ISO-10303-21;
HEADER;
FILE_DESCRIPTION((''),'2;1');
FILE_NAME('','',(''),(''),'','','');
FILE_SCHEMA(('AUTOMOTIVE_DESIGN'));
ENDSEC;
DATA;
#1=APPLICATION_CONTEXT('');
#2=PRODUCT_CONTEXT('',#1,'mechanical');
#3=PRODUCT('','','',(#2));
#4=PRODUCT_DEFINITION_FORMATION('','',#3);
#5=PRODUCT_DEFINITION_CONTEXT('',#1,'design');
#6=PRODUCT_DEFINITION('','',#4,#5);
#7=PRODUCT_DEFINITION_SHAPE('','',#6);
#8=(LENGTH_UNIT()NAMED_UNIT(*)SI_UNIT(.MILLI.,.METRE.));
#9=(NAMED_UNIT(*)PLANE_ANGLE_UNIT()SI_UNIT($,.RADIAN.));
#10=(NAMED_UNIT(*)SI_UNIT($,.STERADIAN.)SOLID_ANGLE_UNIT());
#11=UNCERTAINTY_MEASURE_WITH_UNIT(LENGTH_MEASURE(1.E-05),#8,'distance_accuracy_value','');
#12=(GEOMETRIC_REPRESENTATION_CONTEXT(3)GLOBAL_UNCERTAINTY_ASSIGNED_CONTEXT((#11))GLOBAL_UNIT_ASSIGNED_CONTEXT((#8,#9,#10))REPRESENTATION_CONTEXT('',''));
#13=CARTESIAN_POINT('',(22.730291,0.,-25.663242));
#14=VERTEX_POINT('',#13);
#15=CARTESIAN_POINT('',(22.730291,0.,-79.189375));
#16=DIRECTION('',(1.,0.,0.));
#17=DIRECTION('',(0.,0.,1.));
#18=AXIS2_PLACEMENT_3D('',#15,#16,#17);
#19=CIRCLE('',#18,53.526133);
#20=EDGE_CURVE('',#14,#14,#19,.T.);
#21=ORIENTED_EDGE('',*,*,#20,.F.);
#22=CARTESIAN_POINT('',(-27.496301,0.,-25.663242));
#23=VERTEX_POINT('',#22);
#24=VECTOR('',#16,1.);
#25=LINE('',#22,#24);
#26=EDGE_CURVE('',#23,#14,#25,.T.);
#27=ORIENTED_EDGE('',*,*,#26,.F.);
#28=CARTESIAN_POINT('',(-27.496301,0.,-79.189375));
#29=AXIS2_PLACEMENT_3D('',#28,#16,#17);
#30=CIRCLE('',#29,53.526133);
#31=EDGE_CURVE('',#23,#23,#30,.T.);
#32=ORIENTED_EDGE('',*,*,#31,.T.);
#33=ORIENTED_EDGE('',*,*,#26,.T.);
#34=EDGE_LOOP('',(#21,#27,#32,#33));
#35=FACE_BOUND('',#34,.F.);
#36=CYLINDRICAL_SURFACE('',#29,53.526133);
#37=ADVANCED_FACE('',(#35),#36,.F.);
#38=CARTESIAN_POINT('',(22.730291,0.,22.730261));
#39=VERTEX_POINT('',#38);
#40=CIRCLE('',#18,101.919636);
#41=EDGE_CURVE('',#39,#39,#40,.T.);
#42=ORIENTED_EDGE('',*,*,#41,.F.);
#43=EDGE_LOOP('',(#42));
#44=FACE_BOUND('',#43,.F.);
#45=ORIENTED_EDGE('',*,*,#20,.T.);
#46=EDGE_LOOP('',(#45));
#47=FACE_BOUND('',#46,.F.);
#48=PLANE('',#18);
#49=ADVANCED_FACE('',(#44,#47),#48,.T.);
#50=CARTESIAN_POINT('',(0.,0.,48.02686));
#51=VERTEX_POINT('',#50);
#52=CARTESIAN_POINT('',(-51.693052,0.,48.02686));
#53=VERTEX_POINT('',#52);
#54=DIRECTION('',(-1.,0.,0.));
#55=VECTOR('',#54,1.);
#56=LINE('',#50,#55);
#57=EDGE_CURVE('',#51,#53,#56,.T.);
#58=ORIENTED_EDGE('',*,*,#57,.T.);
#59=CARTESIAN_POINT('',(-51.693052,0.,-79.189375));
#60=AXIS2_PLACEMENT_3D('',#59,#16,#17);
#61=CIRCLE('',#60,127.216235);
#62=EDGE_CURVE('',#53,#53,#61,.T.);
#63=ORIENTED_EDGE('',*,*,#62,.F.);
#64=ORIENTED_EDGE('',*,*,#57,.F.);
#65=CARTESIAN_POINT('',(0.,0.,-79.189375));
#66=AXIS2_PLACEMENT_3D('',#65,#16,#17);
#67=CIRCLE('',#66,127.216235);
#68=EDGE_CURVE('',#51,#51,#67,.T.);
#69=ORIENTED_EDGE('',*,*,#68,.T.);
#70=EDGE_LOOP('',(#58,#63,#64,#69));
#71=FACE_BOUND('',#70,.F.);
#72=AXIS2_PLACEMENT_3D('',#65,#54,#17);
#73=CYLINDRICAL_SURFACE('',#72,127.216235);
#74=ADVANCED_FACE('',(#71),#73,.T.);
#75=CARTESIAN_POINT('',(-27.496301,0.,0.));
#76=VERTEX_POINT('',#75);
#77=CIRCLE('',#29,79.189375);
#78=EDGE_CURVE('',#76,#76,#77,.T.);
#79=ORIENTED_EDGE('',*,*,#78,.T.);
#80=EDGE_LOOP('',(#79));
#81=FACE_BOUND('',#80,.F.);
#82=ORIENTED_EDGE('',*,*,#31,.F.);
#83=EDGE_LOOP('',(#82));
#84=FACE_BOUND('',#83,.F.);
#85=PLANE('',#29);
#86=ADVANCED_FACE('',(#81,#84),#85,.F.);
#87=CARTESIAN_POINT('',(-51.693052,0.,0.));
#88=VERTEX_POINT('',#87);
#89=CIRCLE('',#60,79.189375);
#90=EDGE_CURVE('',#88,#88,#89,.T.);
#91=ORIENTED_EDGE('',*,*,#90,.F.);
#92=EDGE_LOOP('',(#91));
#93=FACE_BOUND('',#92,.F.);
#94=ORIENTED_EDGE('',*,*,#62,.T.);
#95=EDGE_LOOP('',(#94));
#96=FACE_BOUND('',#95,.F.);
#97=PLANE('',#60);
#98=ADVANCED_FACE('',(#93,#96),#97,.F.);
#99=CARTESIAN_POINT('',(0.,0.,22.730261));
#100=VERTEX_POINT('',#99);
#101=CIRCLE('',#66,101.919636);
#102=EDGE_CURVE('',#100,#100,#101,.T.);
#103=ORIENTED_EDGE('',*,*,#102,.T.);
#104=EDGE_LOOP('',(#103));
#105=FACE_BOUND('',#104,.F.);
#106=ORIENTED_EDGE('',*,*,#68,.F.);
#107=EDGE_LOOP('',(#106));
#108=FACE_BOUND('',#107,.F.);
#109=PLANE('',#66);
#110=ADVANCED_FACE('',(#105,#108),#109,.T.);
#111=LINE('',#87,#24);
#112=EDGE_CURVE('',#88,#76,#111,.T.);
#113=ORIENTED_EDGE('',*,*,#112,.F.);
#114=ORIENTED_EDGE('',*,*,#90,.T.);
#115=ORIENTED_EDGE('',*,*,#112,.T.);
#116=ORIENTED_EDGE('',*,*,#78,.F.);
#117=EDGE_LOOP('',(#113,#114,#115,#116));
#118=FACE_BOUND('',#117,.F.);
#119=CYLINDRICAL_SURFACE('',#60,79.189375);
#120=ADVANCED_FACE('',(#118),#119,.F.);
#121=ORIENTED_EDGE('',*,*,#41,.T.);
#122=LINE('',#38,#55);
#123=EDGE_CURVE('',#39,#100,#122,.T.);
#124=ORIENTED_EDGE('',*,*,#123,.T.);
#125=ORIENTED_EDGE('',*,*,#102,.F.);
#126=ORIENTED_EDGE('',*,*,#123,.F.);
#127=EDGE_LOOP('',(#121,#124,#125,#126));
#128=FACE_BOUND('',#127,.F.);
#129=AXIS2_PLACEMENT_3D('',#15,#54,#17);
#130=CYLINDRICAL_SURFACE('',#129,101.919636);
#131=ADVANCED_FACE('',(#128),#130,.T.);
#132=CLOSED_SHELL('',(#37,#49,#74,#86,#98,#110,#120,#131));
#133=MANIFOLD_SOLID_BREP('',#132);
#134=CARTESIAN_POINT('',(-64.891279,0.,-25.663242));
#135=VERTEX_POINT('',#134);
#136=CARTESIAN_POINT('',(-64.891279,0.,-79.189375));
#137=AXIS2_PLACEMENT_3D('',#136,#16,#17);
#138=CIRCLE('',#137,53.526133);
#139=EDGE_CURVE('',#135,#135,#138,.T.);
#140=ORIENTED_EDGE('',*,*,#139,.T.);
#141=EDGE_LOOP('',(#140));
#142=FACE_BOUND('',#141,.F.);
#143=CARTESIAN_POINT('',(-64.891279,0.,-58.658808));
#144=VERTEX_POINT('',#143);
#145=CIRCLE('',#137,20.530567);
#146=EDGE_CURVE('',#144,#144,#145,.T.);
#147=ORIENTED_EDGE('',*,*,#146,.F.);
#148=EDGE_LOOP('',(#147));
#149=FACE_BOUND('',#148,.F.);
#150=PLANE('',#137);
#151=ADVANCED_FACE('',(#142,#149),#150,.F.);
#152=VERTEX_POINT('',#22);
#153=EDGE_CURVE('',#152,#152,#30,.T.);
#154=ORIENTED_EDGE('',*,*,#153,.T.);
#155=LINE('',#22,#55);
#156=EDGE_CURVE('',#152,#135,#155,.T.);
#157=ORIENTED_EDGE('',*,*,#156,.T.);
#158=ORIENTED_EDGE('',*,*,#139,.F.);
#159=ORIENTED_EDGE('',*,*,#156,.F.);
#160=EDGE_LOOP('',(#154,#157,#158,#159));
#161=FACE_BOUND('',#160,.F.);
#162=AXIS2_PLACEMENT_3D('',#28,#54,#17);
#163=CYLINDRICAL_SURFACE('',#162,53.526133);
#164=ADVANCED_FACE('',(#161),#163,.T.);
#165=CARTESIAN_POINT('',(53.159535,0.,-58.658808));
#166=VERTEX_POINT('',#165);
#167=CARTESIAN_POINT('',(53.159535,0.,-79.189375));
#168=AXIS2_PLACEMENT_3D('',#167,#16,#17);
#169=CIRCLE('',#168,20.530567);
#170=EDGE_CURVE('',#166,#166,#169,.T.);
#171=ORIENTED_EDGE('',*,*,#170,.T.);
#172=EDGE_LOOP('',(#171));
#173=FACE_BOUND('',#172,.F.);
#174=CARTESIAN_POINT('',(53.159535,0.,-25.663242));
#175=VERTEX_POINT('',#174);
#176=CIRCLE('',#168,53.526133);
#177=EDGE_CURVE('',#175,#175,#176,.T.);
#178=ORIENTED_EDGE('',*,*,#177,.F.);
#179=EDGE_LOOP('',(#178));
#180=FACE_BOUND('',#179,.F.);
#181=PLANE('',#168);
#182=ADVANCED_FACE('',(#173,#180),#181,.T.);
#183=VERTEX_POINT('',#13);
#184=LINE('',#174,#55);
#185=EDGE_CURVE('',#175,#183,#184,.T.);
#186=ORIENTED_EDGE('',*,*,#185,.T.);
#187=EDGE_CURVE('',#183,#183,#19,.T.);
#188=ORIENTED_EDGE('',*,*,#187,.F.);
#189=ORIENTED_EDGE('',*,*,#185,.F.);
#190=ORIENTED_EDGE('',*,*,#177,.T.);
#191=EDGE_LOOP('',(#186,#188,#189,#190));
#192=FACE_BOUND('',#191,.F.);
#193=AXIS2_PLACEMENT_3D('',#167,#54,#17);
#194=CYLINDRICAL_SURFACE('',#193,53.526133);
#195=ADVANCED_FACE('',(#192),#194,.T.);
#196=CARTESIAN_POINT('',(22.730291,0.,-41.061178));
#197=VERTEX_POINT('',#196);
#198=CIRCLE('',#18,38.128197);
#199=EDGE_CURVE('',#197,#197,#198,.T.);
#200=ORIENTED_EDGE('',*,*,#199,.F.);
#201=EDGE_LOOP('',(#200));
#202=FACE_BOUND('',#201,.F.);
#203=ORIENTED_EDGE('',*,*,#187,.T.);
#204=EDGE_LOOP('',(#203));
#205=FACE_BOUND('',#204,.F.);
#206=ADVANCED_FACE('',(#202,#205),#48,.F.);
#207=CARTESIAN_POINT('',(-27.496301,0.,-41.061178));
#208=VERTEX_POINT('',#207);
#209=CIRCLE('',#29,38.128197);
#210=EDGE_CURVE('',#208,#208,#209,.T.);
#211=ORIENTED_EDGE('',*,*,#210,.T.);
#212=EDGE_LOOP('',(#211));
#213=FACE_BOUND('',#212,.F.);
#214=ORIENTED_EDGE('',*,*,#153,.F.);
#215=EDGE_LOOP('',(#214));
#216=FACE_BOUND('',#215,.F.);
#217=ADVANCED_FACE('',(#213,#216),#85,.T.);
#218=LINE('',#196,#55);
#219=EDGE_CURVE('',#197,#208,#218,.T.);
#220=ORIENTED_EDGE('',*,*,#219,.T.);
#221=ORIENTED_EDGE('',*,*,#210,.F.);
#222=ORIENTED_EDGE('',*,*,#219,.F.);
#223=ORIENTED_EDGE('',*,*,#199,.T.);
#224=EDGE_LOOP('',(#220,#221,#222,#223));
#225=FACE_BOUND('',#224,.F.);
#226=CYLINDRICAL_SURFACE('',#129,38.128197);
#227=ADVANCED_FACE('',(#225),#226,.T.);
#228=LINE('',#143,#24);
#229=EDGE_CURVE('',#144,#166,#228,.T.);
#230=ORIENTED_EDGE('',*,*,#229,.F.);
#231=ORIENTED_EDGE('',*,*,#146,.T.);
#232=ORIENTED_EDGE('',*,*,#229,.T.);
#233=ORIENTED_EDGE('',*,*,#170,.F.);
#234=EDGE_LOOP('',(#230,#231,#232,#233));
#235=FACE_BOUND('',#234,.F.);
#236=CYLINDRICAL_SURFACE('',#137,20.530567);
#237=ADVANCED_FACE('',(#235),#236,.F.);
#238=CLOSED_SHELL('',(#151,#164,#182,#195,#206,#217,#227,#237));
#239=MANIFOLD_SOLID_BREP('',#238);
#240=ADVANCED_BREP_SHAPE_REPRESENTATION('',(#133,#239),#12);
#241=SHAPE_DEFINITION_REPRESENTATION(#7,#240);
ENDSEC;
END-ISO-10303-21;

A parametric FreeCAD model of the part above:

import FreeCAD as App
import Part
import Sketcher


def add_polygon(sketch, points):
    """Adds a closed chain of lines whose ends are joined by coincident constraints."""
    first, n = sketch.GeometryCount, len(points)
    for a, b in zip(points, points[1:] + points[:1]):
        sketch.addGeometry(Part.LineSegment(App.Vector(*a, 0), App.Vector(*b, 0)), False)
    for i in range(n):
        sketch.addConstraint(Sketcher.Constraint("Coincident", first + i, 2, first + (i + 1) % n, 1))

doc = App.newDocument("Part")
body = doc.addObject("PartDesign::Body", "Body")

sketch1 = body.newObject("Sketcher::SketchObject", "Sketch")
sketch1.AttachmentSupport = (doc.getObject("XZ_Plane"), [""])
sketch1.MapMode = "FlatFace"
add_polygon(sketch1, [(0, 23), (0, 48), (-52, 48), (-52, 0), (-27, 0), (-27, -26), (23, -26), (23, 23)])
sketch1.addGeometry(Part.LineSegment(App.Vector(-52, -79, 0), App.Vector(23, -79, 0)), True)
sketch1.addConstraint([
    Sketcher.Constraint("Vertical", 0),
    Sketcher.Constraint("Horizontal", 1),
    Sketcher.Constraint("Vertical", 2),
    Sketcher.Constraint("Horizontal", 3),
    Sketcher.Constraint("Vertical", 4),
    Sketcher.Constraint("Horizontal", 5),
    Sketcher.Constraint("Vertical", 6),
    Sketcher.Constraint("Horizontal", 7),
    Sketcher.Constraint("Horizontal", 8),
    Sketcher.Constraint("PointOnObject", 0, 2, -2),
    Sketcher.Constraint("PointOnObject", 2, 2, -1),
    Sketcher.Constraint("Vertical", 2, 2, 8, 1),
    Sketcher.Constraint("Vertical", 6, 2, 8, 2),
    Sketcher.Constraint("DistanceY", 0, 1, 0, 2, 25.296599),
    Sketcher.Constraint("DistanceX", 3, 1, 3, 2, 24.196751),
    Sketcher.Constraint("DistanceX", 5, 1, 5, 2, 50.226592),
    Sketcher.Constraint("DistanceX", 7, 2, 7, 1, 22.730291),
    Sketcher.Constraint("DistanceY", 2, 2, 2, 1, 48.02686),
    Sketcher.Constraint("DistanceY", 4, 2, 4, 1, 25.663242),
    Sketcher.Constraint("DistanceY", 8, 1, -1, 1, 79.189375),
])
revolution = body.newObject("PartDesign::Revolution", "Revolution")
revolution.Profile = sketch1
revolution.ReferenceAxis = (sketch1, ["Axis0"])
revolution.Angle = 360
body2 = doc.addObject("PartDesign::Body", "Body001")

sketch2 = body2.newObject("Sketcher::SketchObject", "Sketch001")
sketch2.AttachmentSupport = (doc.getObject("XZ_Plane001"), [""])
sketch2.MapMode = "FlatFace"
add_polygon(sketch2, [(-27, -41), (-27, -26), (-65, -26), (-65, -59), (53, -59), (53, -26), (23, -26), (23, -41)])
sketch2.addGeometry(Part.LineSegment(App.Vector(-65, -79, 0), App.Vector(53, -79, 0)), True)
sketch2.addConstraint([
    Sketcher.Constraint("Vertical", 0),
    Sketcher.Constraint("Horizontal", 1),
    Sketcher.Constraint("Vertical", 2),
    Sketcher.Constraint("Horizontal", 3),
    Sketcher.Constraint("Vertical", 4),
    Sketcher.Constraint("Horizontal", 5),
    Sketcher.Constraint("Vertical", 6),
    Sketcher.Constraint("Horizontal", 7),
    Sketcher.Constraint("Horizontal", 8),
    Sketcher.Constraint("Horizontal", 1, 2, 4, 2),
    Sketcher.Constraint("Vertical", 2, 2, 8, 1),
    Sketcher.Constraint("Vertical", 4, 2, 8, 2),
    Sketcher.Constraint("DistanceX", 1, 2, 1, 1, 37.394978),
    Sketcher.Constraint("DistanceX", 7, 2, 7, 1, 50.226592),
    Sketcher.Constraint("DistanceX", 0, 2, -1, 1, 27.496301),
    Sketcher.Constraint("DistanceX", 3, 1, 3, 2, 118.050814),
    Sketcher.Constraint("DistanceY", 0, 1, 0, 2, 15.397936),
    Sketcher.Constraint("DistanceY", 2, 2, 2, 1, 32.995567),
    Sketcher.Constraint("DistanceY", 0, 2, -1, 1, 25.663242),
    Sketcher.Constraint("DistanceY", 8, 1, -1, 1, 79.189375),
])
revolution2 = body2.newObject("PartDesign::Revolution", "Revolution001")
revolution2.Profile = sketch2
revolution2.ReferenceAxis = (sketch2, ["Axis0"])
revolution2.Angle = 360

doc.recompute()
